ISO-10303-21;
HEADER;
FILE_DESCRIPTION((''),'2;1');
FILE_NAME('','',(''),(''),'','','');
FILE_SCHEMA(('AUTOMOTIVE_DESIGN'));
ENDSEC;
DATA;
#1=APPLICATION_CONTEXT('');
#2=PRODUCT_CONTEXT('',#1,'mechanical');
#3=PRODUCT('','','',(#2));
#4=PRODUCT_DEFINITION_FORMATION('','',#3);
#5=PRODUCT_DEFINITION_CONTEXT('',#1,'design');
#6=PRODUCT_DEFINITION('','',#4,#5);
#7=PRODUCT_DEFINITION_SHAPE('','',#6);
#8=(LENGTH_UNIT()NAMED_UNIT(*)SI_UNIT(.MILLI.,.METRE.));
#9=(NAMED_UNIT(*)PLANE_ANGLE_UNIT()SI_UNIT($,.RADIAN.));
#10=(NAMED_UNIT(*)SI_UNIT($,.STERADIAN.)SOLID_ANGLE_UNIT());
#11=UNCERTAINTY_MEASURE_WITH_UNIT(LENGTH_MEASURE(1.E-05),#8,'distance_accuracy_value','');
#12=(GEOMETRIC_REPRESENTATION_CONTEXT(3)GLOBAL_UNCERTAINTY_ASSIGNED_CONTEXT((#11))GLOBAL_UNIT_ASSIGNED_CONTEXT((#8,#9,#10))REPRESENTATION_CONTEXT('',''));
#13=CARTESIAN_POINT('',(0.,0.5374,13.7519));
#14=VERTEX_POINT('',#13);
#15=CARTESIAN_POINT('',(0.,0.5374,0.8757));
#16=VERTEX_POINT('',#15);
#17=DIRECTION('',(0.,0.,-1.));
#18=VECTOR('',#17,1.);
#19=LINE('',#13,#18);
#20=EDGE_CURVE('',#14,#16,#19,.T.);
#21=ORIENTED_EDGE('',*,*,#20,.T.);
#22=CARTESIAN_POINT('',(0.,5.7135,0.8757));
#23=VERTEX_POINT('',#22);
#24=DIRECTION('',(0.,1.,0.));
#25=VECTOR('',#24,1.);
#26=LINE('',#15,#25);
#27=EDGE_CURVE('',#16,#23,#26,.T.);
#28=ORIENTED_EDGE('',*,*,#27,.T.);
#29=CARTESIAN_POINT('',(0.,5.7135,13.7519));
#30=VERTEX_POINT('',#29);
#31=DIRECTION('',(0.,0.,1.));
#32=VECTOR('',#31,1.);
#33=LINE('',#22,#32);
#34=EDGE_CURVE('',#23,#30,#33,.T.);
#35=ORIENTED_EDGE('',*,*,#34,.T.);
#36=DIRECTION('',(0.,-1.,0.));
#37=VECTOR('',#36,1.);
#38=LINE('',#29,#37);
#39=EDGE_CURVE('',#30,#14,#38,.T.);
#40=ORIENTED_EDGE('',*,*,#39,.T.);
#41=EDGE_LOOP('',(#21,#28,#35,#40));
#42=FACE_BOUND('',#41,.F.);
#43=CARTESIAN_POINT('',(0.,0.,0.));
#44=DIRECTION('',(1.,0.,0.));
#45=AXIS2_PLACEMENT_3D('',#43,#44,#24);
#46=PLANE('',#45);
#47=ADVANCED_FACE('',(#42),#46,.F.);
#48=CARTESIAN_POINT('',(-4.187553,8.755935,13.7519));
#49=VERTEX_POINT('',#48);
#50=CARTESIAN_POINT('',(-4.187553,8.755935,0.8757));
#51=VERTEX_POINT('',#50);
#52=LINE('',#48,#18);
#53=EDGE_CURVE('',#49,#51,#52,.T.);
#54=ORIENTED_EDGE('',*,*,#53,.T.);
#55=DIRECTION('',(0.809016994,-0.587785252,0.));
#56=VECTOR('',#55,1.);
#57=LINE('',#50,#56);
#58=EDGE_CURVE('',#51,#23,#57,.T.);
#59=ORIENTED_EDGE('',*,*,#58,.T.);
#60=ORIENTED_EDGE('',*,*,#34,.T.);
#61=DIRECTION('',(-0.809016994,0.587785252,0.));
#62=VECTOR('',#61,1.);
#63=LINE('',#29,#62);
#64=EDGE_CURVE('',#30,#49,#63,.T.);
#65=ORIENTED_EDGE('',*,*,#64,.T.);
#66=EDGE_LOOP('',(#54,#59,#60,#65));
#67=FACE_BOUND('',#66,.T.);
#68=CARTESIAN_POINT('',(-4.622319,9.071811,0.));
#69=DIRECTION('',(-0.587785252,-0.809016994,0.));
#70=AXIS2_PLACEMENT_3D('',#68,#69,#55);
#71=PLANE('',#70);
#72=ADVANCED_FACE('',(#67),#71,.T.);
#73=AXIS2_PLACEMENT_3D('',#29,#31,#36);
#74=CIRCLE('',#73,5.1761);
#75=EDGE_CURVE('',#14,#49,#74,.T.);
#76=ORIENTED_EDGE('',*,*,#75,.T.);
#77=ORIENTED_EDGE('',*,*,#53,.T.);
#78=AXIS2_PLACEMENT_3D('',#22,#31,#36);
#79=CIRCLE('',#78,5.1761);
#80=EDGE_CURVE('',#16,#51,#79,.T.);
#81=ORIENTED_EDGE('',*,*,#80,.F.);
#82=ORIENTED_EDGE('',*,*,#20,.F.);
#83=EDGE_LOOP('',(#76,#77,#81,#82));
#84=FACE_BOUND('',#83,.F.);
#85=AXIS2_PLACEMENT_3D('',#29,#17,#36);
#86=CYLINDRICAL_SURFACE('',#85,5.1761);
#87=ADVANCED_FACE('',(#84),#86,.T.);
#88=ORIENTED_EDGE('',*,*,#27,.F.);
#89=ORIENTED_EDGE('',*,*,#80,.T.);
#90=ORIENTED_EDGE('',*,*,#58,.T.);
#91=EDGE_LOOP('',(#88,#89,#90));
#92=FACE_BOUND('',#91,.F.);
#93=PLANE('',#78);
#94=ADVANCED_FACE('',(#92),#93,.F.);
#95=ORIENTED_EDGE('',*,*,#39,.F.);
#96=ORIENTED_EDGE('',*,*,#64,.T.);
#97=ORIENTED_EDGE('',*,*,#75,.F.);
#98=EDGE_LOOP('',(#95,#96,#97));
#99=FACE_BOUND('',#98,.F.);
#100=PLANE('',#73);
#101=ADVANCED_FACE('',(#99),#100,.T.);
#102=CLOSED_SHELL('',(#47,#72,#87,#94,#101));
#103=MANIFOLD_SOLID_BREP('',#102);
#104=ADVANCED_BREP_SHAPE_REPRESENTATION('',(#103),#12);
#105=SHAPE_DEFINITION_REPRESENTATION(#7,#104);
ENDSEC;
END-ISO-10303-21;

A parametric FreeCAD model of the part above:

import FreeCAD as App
import Part
import Sketcher

V = App.Vector

doc = App.newDocument("Part")
body = doc.addObject("PartDesign::Body", "Body")

# Sketch on YZ plane
sketch1 = doc.addObject("Sketcher::SketchObject", "Sketch")
body.addObject(sketch1)
sketch1.AttachmentSupport = (doc.YZ_Plane, [""])
sketch1.MapMode = "FlatFace"
sketch1.addGeometry(Part.LineSegment(V(6, 1, 0), V(6, 14, 0)), False)
sketch1.addGeometry(Part.LineSegment(V(6, 14, 0), V(1, 14, 0)), False)
sketch1.addGeometry(Part.LineSegment(V(1, 14, 0), V(1, 1, 0)), False)
sketch1.addGeometry(Part.LineSegment(V(1, 1, 0), V(6, 1, 0)), False)
sketch1.addGeometry(Part.LineSegment(V(6, 1, 0), V(6, 14, 0)), True)  # axis
sketch1.addConstraint(Sketcher.Constraint("Coincident", 0, 2, 1, 1))
sketch1.addConstraint(Sketcher.Constraint("Coincident", 1, 2, 2, 1))
sketch1.addConstraint(Sketcher.Constraint("Coincident", 2, 2, 3, 1))
sketch1.addConstraint(Sketcher.Constraint("Coincident", 3, 2, 0, 1))
sketch1.addConstraint(Sketcher.Constraint("Vertical", 0))
sketch1.addConstraint(Sketcher.Constraint("Horizontal", 1))
sketch1.addConstraint(Sketcher.Constraint("Vertical", 2))
sketch1.addConstraint(Sketcher.Constraint("Horizontal", 3))
sketch1.addConstraint(Sketcher.Constraint("Vertical", 4))
sketch1.addConstraint(Sketcher.Constraint("Coincident", 4, 1, 3, 2))
sketch1.addConstraint(Sketcher.Constraint("Horizontal", 1, 2, 4, 2))
sketch1.addConstraint(Sketcher.Constraint("DistanceX", 1, 2, 1, 1, 5.176))
sketch1.addConstraint(Sketcher.Constraint("DistanceY", 0, 1, 0, 2, 12.8762))
sketch1.addConstraint(Sketcher.Constraint("DistanceY", -1, 1, 0, 2, 13.752))
sketch1.addConstraint(Sketcher.Constraint("DistanceX", -1, 1, 0, 2, 5.7135))
revolution = doc.addObject("PartDesign::Revolution", "Revolution")
body.addObject(revolution)
revolution.Profile = sketch1
revolution.ReferenceAxis = (sketch1, ["Axis0"])
revolution.Angle = 234

doc.recompute()
